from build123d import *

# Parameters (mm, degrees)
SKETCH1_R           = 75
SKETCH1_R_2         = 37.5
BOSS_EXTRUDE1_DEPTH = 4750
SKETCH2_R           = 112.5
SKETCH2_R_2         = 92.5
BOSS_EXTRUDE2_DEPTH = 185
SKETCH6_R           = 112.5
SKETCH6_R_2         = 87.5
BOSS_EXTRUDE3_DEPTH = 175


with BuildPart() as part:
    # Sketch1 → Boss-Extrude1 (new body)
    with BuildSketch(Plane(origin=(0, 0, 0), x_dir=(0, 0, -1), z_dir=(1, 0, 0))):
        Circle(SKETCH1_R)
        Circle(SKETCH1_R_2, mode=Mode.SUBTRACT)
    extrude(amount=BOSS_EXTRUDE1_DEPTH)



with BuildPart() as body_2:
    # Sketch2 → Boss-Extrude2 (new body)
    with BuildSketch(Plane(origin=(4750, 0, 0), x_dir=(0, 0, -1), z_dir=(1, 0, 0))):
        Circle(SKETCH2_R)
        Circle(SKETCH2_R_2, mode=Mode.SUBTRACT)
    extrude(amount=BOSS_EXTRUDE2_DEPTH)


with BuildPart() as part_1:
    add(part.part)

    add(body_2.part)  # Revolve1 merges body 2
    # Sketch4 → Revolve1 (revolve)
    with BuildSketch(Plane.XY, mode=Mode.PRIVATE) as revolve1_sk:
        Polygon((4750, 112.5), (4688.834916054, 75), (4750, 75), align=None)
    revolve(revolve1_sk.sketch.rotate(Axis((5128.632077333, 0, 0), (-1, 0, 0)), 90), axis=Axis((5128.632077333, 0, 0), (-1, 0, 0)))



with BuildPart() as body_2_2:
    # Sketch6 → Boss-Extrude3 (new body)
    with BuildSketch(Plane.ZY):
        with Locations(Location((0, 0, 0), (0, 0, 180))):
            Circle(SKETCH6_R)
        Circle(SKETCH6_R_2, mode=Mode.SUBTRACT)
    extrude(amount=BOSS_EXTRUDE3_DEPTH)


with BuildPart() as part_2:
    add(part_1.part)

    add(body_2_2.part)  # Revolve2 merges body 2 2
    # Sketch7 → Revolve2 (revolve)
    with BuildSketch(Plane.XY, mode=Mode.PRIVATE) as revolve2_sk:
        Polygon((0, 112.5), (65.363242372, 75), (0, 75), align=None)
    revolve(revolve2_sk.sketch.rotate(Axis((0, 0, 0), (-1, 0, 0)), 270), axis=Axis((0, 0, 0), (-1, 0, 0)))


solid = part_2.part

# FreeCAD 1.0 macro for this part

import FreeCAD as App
import Part
import Sketcher
Q = App.Units.Quantity

doc = App.newDocument("Part")
body = doc.addObject("PartDesign::Body", "Body")

# Sketch on YZ plane
sketch1 = body.newObject("Sketcher::SketchObject", "Sketch")
sketch1.AttachmentSupport = (doc.getObject("YZ_Plane"), [""])
sketch1.MapMode = "FlatFace"
sketch1.addGeometry(Part.Circle(App.Vector(0, 0, 0), App.Vector(0, 0, 1), 75), False)
sketch1.addGeometry(Part.Circle(App.Vector(0, 0, 0), App.Vector(0, 0, 1), 38), False)
sketch1.addConstraint(Sketcher.Constraint("Coincident", 0, 3, -1, 1))
sketch1.addConstraint(Sketcher.Constraint("Coincident", 1, 3, -1, 1))
sketch1.addConstraint(Sketcher.Constraint("Diameter", 0, Q("150 mm")))
sketch1.addConstraint(Sketcher.Constraint("Diameter", 1, Q("75 mm")))
pad1 = body.newObject("PartDesign::Pad", "Pad")
pad1.Profile = sketch1
pad1.Length = 4750
body2 = doc.addObject("PartDesign::Body", "Body001")

# Sketch on YZ plane
sketch2 = body2.newObject("Sketcher::SketchObject", "Sketch001")
sketch2.AttachmentSupport = (doc.getObject("YZ_Plane001"), [""])
sketch2.MapMode = "FlatFace"
sketch2.AttachmentOffset = App.Placement(App.Vector(0, 0, 4750), App.Rotation())
sketch2.addGeometry(Part.Circle(App.Vector(0, 0, 0), App.Vector(0, 0, 1), 112), False)
sketch2.addGeometry(Part.Circle(App.Vector(0, 0, 0), App.Vector(0, 0, 1), 92), False)
sketch2.addConstraint(Sketcher.Constraint("Coincident", 0, 3, -1, 1))
sketch2.addConstraint(Sketcher.Constraint("Coincident", 1, 3, -1, 1))
sketch2.addConstraint(Sketcher.Constraint("Diameter", 0, Q("225 mm")))
sketch2.addConstraint(Sketcher.Constraint("Diameter", 1, Q("185 mm")))
pad2 = body2.newObject("PartDesign::Pad", "Pad001")
pad2.Profile = sketch2
pad2.Length = 185
body.AllowCompound = True
doc.recompute()

boolean = body.newObject("PartDesign::Boolean", "Boolean")
boolean.Type = "Fuse"
boolean.addObjects([body2])

# Sketch on XY plane
sketch3 = body.newObject("Sketcher::SketchObject", "Sketch002")
sketch3.AttachmentSupport = (doc.getObject("XY_Plane"), [""])
sketch3.MapMode = "FlatFace"
sketch3.addGeometry(Part.LineSegment(App.Vector(4750, 112, 0), App.Vector(4689, 75, 0)), False)
sketch3.addGeometry(Part.LineSegment(App.Vector(4689, 75, 0), App.Vector(4750, 75, 0)), False)
sketch3.addGeometry(Part.LineSegment(App.Vector(4750, 75, 0), App.Vector(4750, 112, 0)), False)
sketch3.addConstraint(Sketcher.Constraint("Coincident", 0, 2, 1, 1))
sketch3.addConstraint(Sketcher.Constraint("Coincident", 1, 2, 2, 1))
sketch3.addConstraint(Sketcher.Constraint("Coincident", 2, 2, 0, 1))
sketch3.addConstraint(Sketcher.Constraint("Horizontal", 1))
sketch3.addConstraint(Sketcher.Constraint("Vertical", 2))
sketch3.addConstraint(Sketcher.Constraint("DistanceY", 2, 1, 2, 2, Q("37.5 mm")))
sketch3.addConstraint(Sketcher.Constraint("DistanceY", -1, 1, 0, 2, Q("75 mm")))
sketch3.addConstraint(Sketcher.Constraint("DistanceX", -1, 1, 1, 2, Q("4750 mm")))
sketch3.addConstraint(Sketcher.Constraint("DistanceX", 1, 1, 1, 2, Q("61.165084 mm")))
revolution = body.newObject("PartDesign::Revolution", "Revolution")
revolution.Profile = sketch3
revolution.ReferenceAxis = (sketch3, ["H_Axis"])
revolution.Angle = 360
body3 = doc.addObject("PartDesign::Body", "Body002")

# Sketch on YZ plane
sketch4 = body3.newObject("Sketcher::SketchObject", "Sketch003")
sketch4.AttachmentSupport = (doc.getObject("YZ_Plane002"), [""])
sketch4.MapMode = "FlatFace"
sketch4.addGeometry(Part.Circle(App.Vector(0, 0, 0), App.Vector(0, 0, 1), 112), False)
sketch4.addGeometry(Part.Circle(App.Vector(0, 0, 0), App.Vector(0, 0, 1), 88), False)
sketch4.addConstraint(Sketcher.Constraint("Coincident", 0, 3, -1, 1))
sketch4.addConstraint(Sketcher.Constraint("Coincident", 1, 3, -1, 1))
sketch4.addConstraint(Sketcher.Constraint("Diameter", 0, Q("225 mm")))
sketch4.addConstraint(Sketcher.Constraint("Diameter", 1, Q("175 mm")))
pad3 = body3.newObject("PartDesign::Pad", "Pad002")
pad3.Profile = sketch4
pad3.Length = 175
pad3.Reversed = True
body.AllowCompound = True
doc.recompute()

boolean2 = body.newObject("PartDesign::Boolean", "Boolean001")
boolean2.Type = "Fuse"
boolean2.addObjects([body3])

# Sketch on XY plane
sketch5 = body.newObject("Sketcher::SketchObject", "Sketch004")
sketch5.AttachmentSupport = (doc.getObject("XY_Plane"), [""])
sketch5.MapMode = "FlatFace"
sketch5.addGeometry(Part.LineSegment(App.Vector(65, 75, 0), App.Vector(0, 112, 0)), False)
sketch5.addGeometry(Part.LineSegment(App.Vector(0, 112, 0), App.Vector(0, 75, 0)), False)
sketch5.addGeometry(Part.LineSegment(App.Vector(0, 75, 0), App.Vector(65, 75, 0)), False)
sketch5.addConstraint(Sketcher.Constraint("Coincident", 0, 2, 1, 1))
sketch5.addConstraint(Sketcher.Constraint("Coincident", 1, 2, 2, 1))
sketch5.addConstraint(Sketcher.Constraint("Coincident", 2, 2, 0, 1))
sketch5.addConstraint(Sketcher.Constraint("Vertical", 1))
sketch5.addConstraint(Sketcher.Constraint("Horizontal", 2))
sketch5.addConstraint(Sketcher.Constraint("PointOnObject", 0, 2, -2))
sketch5.addConstraint(Sketcher.Constraint("DistanceY", 1, 2, 1, 1, Q("37.5 mm")))
sketch5.addConstraint(Sketcher.Constraint("DistanceY", -1, 1, 1, 2, Q("75 mm")))
sketch5.addConstraint(Sketcher.Constraint("Distance", 0, Q("75.356509 mm")))
revolution2 = body.newObject("PartDesign::Revolution", "Revolution001")
revolution2.Profile = sketch5
revolution2.ReferenceAxis = (sketch5, ["H_Axis"])
revolution2.Angle = 360

doc.recompute()
